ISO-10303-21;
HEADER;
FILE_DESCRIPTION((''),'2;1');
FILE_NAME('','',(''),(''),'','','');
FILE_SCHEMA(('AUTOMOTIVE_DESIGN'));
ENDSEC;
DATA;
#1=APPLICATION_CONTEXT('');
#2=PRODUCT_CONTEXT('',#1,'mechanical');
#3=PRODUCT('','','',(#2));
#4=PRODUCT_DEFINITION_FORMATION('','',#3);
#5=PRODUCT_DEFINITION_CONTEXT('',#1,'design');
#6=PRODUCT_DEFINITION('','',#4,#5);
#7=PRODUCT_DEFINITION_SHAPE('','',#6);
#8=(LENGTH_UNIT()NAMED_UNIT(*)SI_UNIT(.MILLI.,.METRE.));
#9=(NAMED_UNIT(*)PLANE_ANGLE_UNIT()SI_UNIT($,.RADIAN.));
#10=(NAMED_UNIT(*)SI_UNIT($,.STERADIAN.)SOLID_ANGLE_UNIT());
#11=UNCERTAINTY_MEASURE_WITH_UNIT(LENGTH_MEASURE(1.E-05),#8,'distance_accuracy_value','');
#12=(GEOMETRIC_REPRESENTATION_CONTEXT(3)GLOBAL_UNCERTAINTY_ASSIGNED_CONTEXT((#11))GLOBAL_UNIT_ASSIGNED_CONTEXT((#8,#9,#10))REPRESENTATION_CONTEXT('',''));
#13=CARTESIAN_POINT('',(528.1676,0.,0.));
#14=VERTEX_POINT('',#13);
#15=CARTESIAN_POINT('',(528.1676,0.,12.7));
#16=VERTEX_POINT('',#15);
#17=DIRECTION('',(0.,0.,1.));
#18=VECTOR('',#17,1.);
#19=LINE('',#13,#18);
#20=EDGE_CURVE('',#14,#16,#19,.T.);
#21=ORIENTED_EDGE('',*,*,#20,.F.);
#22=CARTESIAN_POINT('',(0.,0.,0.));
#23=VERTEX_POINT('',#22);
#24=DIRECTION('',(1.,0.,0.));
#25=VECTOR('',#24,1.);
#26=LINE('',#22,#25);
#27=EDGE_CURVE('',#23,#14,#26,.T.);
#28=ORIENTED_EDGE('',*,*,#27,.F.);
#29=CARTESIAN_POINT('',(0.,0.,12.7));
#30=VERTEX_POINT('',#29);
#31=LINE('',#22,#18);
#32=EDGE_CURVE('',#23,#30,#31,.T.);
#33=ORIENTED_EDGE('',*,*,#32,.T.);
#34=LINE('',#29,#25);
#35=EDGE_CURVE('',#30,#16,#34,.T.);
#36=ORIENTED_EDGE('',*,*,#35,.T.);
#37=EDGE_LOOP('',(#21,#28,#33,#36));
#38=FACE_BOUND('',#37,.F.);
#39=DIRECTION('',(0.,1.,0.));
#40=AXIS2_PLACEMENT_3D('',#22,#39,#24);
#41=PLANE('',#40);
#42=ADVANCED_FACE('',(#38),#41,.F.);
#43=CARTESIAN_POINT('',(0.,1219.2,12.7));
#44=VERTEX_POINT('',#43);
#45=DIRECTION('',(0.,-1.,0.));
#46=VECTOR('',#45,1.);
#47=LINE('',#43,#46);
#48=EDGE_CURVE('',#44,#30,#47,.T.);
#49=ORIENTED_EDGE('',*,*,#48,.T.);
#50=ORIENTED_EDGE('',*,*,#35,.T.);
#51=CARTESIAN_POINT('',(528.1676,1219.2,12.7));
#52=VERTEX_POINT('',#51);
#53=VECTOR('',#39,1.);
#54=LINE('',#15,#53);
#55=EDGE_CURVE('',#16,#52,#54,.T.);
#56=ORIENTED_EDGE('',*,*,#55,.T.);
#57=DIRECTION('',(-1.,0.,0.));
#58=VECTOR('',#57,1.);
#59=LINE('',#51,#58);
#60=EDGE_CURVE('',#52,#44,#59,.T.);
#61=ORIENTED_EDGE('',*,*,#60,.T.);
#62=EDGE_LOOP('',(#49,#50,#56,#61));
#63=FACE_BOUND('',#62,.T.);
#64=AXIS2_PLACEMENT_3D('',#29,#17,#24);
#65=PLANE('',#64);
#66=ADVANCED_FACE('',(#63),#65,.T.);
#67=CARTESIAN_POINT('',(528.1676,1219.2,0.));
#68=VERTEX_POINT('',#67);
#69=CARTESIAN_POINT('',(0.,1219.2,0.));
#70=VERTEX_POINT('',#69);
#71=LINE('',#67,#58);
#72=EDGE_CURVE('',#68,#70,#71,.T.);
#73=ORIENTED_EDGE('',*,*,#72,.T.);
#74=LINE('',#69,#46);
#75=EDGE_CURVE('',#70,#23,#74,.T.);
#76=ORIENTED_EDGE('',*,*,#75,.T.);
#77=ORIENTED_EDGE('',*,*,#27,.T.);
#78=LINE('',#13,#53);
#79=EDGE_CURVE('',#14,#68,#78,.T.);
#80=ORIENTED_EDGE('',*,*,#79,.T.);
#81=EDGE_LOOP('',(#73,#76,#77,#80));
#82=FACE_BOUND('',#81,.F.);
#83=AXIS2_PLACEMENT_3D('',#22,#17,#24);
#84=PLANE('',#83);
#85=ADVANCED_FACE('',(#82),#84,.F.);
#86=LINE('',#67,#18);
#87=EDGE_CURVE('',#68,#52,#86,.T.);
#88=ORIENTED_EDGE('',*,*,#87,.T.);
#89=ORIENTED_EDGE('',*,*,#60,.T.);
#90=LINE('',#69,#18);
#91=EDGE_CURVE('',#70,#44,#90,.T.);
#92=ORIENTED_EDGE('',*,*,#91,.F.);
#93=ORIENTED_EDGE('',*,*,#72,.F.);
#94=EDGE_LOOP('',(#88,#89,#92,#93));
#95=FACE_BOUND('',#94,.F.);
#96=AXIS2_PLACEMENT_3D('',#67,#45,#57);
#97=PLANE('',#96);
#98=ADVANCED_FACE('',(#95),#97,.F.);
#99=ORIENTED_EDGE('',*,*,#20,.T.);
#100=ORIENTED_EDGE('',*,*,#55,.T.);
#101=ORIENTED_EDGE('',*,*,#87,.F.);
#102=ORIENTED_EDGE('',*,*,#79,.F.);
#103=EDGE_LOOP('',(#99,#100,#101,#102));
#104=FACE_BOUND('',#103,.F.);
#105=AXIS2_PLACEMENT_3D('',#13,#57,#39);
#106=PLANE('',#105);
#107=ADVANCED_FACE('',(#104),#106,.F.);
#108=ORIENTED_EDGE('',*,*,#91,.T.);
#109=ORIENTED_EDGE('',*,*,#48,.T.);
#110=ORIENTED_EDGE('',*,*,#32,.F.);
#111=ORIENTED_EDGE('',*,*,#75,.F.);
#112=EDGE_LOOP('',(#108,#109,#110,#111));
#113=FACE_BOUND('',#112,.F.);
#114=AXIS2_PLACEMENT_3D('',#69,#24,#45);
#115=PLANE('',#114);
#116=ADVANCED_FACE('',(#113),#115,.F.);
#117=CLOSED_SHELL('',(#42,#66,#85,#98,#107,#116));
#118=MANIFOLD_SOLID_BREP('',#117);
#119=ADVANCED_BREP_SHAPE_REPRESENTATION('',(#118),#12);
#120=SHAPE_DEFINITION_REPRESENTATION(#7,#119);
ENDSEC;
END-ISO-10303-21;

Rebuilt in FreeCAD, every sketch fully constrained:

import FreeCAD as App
import Part
import Sketcher
from FreeCAD import Vector
Q = App.Units.Quantity


def add_polygon(sketch, points):
    """Adds a closed chain of lines whose ends are joined by coincident constraints."""
    first, n = sketch.GeometryCount, len(points)
    for a, b in zip(points, points[1:] + points[:1]):
        sketch.addGeometry(Part.LineSegment(App.Vector(*a, 0), App.Vector(*b, 0)), False)
    for i in range(n):
        sketch.addConstraint(Sketcher.Constraint("Coincident", first + i, 2, first + (i + 1) % n, 1))

doc = App.newDocument("Part")
params = doc.addObject("Spreadsheet::Sheet", "Params")
for row, (alias, value) in enumerate([
    ("sketch1_height", "48 in"),
    ("sketch1_width", "20.794 in"),
    ("pad1_length", "0.5 in"),
], start=1):
    params.set(f"A{row}", alias)
    params.set(f"B{row}", "=" + value)
    params.setAlias(f"B{row}", alias)

body = doc.addObject("PartDesign::Body", "Body")

sketch1 = body.newObject("Sketcher::SketchObject", "Sketch")
sketch1.AttachmentSupport = (doc.getObject("XY_Plane"), [""])
sketch1.MapMode = "FlatFace"
add_polygon(sketch1, [(0, 1219), (0, 0), (528, 0), (528, 1219)])
sketch1.addConstraint([
    Sketcher.Constraint("Vertical", 0),
    Sketcher.Constraint("Horizontal", 1),
    Sketcher.Constraint("Vertical", 2),
    Sketcher.Constraint("Horizontal", 3),
    Sketcher.Constraint("Coincident", 0, 2, -1, 1),
    Sketcher.Constraint("DistanceY", 0, 2, 0, 1, Q("48 in")),
    Sketcher.Constraint("DistanceX", 1, 1, 1, 2, Q("20.794 in")),
])
sketch1.setExpression("Constraints[9]", "Params.sketch1_height")
sketch1.setExpression("Constraints[10]", "Params.sketch1_width")
pad1 = body.newObject("PartDesign::Pad", "Pad")
pad1.Profile = sketch1
pad1.setExpression("Length", "Params.pad1_length")

doc.recompute()
